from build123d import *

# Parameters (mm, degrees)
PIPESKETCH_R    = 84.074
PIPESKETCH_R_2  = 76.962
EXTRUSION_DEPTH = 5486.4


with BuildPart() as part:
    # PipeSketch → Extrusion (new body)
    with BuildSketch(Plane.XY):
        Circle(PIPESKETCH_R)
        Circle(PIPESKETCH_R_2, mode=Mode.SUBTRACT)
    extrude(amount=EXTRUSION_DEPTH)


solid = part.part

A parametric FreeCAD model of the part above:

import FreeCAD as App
import Part
import Sketcher

V = App.Vector
Q = App.Units.Quantity

doc = App.newDocument("Part")
body = doc.addObject("PartDesign::Body", "Body")

sketch1 = doc.addObject("Sketcher::SketchObject", "Sketch")
body.addObject(sketch1)
sketch1.AttachmentSupport = (doc.XY_Plane, [""])
sketch1.MapMode = "FlatFace"
sketch1.addGeometry(Part.Circle(V(0, 0, 0), V(0, 0, 1), 84.074), False)
sketch1.addGeometry(Part.Circle(V(0, 0, 0), V(0, 0, 1), 76.962), False)
sketch1.addConstraint(Sketcher.Constraint("Coincident", 0, 3, -1, 1))
sketch1.addConstraint(Sketcher.Constraint("Coincident", 1, 3, -1, 1))
sketch1.addConstraint(Sketcher.Constraint("Diameter", 0, Q("6.62 in")))
sketch1.addConstraint(Sketcher.Constraint("Diameter", 1, Q("6.06 in")))
pad1 = doc.addObject("PartDesign::Pad", "Pad")
body.addObject(pad1)
pad1.Profile = sketch1
pad1.Length = Q("216 in")

doc.recompute()
